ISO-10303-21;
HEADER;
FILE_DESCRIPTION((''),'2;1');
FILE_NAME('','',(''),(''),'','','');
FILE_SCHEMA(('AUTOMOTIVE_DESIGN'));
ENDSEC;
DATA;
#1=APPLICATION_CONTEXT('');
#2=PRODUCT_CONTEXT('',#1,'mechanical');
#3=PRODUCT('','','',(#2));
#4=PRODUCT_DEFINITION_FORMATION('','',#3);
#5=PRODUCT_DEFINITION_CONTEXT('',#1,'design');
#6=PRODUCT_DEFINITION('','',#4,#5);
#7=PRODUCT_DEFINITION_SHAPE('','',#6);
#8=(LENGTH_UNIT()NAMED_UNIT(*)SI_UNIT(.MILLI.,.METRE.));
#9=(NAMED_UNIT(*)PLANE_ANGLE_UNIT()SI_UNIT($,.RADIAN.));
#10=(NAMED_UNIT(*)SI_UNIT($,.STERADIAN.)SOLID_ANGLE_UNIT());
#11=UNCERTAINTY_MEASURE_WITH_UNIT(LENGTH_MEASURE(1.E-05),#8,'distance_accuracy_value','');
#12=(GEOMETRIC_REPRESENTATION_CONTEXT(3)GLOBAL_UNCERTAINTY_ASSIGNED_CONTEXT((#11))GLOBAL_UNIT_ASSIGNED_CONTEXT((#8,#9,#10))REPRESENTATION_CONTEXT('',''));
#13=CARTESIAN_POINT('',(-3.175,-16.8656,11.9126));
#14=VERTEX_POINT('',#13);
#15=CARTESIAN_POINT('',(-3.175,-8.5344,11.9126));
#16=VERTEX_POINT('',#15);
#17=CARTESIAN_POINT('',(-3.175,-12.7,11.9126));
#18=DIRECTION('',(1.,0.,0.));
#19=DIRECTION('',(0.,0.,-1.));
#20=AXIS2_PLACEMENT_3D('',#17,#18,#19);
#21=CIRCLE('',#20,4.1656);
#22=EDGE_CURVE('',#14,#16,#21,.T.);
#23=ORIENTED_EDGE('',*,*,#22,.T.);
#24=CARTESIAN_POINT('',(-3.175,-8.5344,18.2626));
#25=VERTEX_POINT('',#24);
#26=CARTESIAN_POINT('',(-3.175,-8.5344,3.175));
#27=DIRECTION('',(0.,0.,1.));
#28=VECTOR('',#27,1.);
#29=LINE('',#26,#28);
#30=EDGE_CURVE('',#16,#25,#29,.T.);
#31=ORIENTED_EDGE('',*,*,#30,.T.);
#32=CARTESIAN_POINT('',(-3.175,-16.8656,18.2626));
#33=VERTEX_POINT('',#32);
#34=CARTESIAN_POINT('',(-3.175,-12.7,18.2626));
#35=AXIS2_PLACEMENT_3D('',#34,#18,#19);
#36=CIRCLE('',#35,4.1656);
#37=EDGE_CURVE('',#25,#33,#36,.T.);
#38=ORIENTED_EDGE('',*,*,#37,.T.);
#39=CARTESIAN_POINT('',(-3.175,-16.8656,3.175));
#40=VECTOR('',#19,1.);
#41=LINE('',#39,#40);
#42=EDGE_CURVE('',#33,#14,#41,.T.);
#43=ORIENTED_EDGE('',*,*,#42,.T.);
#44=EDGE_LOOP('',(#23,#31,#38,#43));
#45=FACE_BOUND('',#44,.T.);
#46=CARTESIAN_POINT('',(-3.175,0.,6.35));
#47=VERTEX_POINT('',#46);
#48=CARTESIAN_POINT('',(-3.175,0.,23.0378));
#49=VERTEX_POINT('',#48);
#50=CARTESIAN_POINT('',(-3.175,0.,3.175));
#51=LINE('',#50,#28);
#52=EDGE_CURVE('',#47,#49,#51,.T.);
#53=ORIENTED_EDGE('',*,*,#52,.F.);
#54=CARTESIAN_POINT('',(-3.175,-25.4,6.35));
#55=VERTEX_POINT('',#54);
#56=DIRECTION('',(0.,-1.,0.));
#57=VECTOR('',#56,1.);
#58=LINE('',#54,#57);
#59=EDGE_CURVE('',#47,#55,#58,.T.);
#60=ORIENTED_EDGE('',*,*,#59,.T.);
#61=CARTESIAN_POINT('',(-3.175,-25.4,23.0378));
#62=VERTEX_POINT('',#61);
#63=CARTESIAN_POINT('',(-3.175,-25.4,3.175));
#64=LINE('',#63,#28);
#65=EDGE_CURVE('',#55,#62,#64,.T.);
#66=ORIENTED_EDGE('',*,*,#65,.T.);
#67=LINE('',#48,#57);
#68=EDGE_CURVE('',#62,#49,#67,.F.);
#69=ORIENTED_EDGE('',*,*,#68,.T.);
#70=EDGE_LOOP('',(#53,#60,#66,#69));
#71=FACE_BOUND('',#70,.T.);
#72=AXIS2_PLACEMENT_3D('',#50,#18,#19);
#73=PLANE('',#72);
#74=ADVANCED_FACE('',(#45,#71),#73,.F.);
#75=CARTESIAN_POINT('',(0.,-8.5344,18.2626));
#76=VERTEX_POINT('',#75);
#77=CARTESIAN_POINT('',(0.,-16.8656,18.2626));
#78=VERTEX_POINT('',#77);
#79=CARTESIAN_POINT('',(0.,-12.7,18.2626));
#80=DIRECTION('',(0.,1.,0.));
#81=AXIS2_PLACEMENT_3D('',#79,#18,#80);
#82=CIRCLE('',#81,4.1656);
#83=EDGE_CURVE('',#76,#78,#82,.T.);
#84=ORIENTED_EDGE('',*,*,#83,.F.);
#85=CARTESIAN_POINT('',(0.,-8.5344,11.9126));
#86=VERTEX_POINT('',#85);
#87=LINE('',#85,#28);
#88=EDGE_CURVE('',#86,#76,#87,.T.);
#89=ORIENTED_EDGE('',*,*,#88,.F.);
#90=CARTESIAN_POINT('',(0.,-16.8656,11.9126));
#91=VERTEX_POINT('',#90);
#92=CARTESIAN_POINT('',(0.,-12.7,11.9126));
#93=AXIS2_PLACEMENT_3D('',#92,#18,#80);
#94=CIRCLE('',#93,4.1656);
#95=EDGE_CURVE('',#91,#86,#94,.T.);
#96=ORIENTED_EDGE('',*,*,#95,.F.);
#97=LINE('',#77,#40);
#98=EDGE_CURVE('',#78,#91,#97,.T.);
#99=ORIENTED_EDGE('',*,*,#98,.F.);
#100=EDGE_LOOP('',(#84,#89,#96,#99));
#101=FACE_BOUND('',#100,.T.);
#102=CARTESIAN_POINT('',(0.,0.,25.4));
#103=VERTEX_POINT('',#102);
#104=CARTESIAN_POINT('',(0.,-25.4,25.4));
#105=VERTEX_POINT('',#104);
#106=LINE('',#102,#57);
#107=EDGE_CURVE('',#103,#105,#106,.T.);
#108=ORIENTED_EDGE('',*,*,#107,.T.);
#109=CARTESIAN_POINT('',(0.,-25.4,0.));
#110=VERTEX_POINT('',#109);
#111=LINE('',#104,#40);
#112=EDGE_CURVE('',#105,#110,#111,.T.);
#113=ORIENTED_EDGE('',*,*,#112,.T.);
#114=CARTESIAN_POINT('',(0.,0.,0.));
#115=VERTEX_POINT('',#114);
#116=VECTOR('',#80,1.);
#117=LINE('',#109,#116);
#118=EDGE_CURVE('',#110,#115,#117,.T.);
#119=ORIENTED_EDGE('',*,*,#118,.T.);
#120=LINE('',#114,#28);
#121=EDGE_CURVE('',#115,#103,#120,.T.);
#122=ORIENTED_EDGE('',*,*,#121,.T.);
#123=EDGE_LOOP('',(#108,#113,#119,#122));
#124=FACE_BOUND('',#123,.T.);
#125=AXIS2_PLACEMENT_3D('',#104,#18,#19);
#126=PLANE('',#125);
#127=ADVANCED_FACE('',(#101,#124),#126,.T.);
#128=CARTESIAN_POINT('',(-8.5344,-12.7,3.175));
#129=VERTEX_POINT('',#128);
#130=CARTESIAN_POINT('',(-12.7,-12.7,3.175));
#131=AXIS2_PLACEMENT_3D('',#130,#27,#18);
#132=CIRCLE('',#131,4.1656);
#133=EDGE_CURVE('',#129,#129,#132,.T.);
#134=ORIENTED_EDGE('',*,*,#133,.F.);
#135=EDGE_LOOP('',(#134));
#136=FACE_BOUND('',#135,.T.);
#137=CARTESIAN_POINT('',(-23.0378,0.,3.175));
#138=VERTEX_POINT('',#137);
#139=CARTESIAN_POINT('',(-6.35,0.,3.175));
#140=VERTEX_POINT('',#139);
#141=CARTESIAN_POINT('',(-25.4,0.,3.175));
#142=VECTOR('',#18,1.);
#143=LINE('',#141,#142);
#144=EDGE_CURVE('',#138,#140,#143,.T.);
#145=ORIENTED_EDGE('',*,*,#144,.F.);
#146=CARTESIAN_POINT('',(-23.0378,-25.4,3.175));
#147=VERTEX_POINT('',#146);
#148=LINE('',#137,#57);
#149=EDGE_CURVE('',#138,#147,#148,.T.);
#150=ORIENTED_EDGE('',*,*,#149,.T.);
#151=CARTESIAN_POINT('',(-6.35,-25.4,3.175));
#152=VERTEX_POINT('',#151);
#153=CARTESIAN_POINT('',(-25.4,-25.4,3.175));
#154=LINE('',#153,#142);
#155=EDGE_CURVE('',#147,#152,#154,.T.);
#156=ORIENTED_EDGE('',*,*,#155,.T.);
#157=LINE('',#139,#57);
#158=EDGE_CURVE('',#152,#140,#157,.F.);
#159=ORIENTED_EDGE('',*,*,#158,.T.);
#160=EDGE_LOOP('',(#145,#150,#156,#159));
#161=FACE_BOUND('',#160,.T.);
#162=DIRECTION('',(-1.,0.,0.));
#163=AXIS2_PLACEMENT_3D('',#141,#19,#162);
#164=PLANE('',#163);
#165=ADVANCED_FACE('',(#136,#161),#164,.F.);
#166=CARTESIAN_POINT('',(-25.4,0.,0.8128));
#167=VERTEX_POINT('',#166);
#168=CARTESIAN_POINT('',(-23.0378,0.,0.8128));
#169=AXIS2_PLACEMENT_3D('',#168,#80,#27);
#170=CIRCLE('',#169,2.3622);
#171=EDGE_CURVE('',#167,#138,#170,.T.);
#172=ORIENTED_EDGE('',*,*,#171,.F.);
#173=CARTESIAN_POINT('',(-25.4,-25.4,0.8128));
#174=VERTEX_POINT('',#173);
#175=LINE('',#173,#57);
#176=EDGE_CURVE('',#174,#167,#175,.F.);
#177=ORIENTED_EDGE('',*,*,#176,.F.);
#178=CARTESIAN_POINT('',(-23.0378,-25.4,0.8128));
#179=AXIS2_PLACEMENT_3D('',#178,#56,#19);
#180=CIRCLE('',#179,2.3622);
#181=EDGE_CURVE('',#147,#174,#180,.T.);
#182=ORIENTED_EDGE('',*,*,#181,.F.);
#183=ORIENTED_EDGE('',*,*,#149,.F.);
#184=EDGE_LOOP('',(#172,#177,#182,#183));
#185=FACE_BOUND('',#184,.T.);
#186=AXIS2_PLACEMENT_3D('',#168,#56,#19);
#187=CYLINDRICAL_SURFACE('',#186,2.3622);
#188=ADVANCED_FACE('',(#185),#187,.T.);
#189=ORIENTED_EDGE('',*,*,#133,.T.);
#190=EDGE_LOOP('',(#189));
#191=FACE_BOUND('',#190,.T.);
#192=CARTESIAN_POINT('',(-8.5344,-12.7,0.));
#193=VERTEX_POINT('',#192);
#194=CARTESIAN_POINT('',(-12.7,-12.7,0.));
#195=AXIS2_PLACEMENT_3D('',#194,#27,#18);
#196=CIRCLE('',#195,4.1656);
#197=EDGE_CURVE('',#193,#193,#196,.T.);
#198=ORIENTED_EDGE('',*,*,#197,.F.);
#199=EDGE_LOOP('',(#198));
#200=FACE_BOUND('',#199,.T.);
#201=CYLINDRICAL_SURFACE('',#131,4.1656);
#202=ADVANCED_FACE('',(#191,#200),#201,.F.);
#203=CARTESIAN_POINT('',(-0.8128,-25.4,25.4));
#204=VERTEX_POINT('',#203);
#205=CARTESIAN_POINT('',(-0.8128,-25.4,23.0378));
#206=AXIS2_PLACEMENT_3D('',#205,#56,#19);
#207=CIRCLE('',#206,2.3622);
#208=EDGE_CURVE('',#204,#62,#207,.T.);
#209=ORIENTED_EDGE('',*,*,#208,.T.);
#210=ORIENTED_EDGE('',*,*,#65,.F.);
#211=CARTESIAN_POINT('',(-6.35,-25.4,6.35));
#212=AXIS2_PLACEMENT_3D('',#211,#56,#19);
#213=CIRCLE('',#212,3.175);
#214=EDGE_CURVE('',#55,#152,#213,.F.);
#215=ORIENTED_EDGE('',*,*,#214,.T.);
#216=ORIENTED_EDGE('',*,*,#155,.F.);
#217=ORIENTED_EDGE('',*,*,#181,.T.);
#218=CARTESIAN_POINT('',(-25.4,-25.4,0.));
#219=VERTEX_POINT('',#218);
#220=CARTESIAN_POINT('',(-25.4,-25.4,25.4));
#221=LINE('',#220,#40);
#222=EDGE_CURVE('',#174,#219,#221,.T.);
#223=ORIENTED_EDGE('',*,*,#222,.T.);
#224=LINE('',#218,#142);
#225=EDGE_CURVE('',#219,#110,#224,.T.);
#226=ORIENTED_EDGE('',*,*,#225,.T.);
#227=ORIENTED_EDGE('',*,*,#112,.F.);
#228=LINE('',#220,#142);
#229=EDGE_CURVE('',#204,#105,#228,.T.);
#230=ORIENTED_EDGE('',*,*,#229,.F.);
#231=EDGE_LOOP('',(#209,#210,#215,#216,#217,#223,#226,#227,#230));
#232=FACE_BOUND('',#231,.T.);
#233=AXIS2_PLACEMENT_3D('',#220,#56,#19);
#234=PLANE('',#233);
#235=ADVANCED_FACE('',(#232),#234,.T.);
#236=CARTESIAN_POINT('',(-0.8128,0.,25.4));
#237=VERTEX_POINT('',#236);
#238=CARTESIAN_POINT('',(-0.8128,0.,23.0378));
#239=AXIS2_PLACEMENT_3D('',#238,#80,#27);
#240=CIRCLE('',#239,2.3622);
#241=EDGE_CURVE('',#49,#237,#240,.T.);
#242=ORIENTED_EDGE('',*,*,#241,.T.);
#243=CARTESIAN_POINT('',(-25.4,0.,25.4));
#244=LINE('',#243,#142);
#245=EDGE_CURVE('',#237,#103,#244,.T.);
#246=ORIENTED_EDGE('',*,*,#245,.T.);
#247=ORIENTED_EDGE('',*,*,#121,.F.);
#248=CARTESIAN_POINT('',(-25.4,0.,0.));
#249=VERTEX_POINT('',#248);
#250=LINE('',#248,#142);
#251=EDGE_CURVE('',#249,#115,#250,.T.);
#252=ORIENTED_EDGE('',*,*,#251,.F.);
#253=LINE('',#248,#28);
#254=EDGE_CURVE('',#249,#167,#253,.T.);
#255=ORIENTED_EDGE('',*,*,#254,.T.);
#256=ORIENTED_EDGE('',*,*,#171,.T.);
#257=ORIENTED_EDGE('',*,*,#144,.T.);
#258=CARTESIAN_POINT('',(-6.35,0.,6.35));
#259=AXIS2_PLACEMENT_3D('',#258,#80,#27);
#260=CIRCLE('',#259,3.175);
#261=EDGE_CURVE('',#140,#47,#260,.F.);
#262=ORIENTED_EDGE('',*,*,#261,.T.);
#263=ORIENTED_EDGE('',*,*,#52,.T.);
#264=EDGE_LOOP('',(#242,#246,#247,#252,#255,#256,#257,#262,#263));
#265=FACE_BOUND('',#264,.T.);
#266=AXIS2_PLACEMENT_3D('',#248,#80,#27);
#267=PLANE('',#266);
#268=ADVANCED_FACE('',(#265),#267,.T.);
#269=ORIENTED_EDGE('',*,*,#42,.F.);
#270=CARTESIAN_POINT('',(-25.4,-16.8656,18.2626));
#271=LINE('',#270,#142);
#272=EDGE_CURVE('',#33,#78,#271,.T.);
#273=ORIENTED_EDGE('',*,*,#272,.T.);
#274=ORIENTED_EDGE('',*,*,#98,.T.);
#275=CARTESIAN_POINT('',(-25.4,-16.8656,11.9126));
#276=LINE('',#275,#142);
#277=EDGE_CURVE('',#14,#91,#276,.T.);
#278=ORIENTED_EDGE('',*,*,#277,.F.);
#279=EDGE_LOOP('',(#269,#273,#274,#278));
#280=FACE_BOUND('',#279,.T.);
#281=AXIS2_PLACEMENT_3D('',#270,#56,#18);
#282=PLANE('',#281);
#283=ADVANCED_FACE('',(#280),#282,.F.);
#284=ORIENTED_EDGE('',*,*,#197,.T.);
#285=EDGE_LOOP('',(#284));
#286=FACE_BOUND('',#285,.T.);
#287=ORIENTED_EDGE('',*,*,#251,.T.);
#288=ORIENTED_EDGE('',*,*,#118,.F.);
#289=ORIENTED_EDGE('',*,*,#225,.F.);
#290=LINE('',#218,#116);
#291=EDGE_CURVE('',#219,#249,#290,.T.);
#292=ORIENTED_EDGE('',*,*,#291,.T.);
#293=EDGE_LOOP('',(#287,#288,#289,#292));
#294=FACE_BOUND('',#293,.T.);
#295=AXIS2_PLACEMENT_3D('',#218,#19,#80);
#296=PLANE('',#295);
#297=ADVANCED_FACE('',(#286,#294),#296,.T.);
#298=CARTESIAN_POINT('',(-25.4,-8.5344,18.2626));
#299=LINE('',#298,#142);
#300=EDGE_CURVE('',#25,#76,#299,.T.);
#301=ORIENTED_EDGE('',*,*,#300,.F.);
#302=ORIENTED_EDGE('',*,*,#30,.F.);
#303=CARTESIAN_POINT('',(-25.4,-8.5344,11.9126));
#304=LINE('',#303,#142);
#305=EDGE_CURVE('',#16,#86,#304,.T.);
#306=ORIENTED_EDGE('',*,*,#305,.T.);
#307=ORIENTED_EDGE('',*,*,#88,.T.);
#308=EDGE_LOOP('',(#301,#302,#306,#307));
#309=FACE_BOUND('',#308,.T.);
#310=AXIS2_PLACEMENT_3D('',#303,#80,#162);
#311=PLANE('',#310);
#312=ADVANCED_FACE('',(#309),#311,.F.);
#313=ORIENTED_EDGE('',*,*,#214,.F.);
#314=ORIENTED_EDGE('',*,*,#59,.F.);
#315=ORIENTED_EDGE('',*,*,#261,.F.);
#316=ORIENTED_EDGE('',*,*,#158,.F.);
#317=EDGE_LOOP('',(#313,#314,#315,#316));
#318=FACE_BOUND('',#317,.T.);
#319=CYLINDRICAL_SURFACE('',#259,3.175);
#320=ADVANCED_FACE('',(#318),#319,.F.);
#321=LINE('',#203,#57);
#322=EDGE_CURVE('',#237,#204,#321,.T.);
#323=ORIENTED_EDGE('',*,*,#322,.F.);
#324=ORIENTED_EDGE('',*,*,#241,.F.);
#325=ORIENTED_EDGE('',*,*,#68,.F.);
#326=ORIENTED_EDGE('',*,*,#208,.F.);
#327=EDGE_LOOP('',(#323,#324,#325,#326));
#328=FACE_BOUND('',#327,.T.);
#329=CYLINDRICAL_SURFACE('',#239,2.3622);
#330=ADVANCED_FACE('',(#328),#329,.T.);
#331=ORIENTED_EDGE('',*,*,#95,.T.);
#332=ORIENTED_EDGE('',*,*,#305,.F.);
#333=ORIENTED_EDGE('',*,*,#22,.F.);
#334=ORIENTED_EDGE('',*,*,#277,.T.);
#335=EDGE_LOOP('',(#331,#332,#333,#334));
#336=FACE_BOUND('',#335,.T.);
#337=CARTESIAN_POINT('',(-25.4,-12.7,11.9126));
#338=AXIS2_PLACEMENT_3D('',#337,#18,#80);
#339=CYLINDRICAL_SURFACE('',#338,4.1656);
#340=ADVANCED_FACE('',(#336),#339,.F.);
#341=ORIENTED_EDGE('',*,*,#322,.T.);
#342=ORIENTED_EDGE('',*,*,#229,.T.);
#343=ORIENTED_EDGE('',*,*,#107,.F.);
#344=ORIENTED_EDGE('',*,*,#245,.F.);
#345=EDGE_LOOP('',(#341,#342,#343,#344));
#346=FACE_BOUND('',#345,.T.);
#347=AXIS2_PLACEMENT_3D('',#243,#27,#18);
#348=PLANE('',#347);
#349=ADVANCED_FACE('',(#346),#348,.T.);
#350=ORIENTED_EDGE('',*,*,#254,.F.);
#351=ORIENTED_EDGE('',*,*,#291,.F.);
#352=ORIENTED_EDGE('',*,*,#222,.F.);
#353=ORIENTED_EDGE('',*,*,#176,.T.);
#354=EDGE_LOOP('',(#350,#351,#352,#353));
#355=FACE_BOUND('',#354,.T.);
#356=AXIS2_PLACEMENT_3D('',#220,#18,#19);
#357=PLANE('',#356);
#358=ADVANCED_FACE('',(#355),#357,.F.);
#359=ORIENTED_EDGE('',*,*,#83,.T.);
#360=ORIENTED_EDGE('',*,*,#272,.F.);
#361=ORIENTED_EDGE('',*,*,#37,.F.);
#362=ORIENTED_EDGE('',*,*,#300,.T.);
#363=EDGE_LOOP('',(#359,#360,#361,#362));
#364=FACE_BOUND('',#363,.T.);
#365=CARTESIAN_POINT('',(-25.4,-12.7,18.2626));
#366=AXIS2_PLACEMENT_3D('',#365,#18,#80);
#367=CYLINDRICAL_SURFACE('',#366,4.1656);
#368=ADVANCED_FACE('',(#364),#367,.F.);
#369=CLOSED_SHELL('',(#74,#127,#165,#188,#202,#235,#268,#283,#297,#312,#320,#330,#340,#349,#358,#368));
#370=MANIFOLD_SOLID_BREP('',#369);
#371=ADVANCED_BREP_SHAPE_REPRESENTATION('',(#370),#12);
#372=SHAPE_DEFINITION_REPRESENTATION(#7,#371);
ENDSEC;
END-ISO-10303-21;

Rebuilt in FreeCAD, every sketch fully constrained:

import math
import FreeCAD as App
import Part
import Sketcher

V = App.Vector
Q = App.Units.Quantity


def edges_at(feature, points):
    """Names of the edges that pass closest to the given points."""
    edges = feature.Shape.Edges
    near = lambda p: min(range(len(edges)), key=lambda i: edges[i].distToShape(Part.Vertex(*p))[0])
    return sorted({f"Edge{near(p) + 1}" for p in points})

doc = App.newDocument("Part")
body = doc.addObject("PartDesign::Body", "Body")

# Sketch on YZ plane
sketch1 = body.newObject("Sketcher::SketchObject", "Sketch")
sketch1.AttachmentSupport = (doc.getObject("YZ_Plane"), [""])
sketch1.MapMode = "FlatFace"
sketch1.addGeometry(Part.LineSegment(V(0, 25, 0), V(-25, 25, 0)), False)
sketch1.addGeometry(Part.LineSegment(V(-25, 25, 0), V(-25, 0, 0)), False)
sketch1.addGeometry(Part.LineSegment(V(-25, 0, 0), V(0, 0, 0)), False)
sketch1.addGeometry(Part.LineSegment(V(0, 0, 0), V(0, 25, 0)), False)
sketch1.addConstraint(Sketcher.Constraint("Coincident", 0, 2, 1, 1))
sketch1.addConstraint(Sketcher.Constraint("Coincident", 1, 2, 2, 1))
sketch1.addConstraint(Sketcher.Constraint("Coincident", 2, 2, 3, 1))
sketch1.addConstraint(Sketcher.Constraint("Coincident", 3, 2, 0, 1))
sketch1.addConstraint(Sketcher.Constraint("Horizontal", 0))
sketch1.addConstraint(Sketcher.Constraint("Vertical", 1))
sketch1.addConstraint(Sketcher.Constraint("Horizontal", 2))
sketch1.addConstraint(Sketcher.Constraint("Vertical", 3))
sketch1.addConstraint(Sketcher.Constraint("Coincident", 2, 2, -1, 1))
sketch1.addConstraint(Sketcher.Constraint("Equal", 2, 1))
sketch1.addConstraint(Sketcher.Constraint("DistanceX", 0, 2, 0, 1, Q("1 in")))
pad1 = body.newObject("PartDesign::Pad", "Pad")
pad1.Profile = sketch1
pad1.Length = Q("1 in")
pad1.Reversed = True

# Sketch on XZ plane
sketch2 = body.newObject("Sketcher::SketchObject", "Sketch001")
sketch2.AttachmentSupport = (doc.getObject("XZ_Plane"), [""])
sketch2.MapMode = "FlatFace"
sketch2.AttachmentOffset = App.Placement(V(0, 0, 1 * 25.4), App.Rotation())
sketch2.addGeometry(Part.LineSegment(V(-25, 25, 0), V(-25, 3, 0)), False)
sketch2.addGeometry(Part.LineSegment(V(-25, 3, 0), V(-3, 3, 0)), False)
sketch2.addGeometry(Part.LineSegment(V(-3, 3, 0), V(-3, 25, 0)), False)
sketch2.addGeometry(Part.LineSegment(V(-3, 25, 0), V(-25, 25, 0)), False)
sketch2.addConstraint(Sketcher.Constraint("Coincident", 0, 2, 1, 1))
sketch2.addConstraint(Sketcher.Constraint("Coincident", 1, 2, 2, 1))
sketch2.addConstraint(Sketcher.Constraint("Coincident", 2, 2, 3, 1))
sketch2.addConstraint(Sketcher.Constraint("Coincident", 3, 2, 0, 1))
sketch2.addConstraint(Sketcher.Constraint("Vertical", 0))
sketch2.addConstraint(Sketcher.Constraint("Horizontal", 1))
sketch2.addConstraint(Sketcher.Constraint("Vertical", 2))
sketch2.addConstraint(Sketcher.Constraint("Horizontal", 3))
sketch2.addConstraint(Sketcher.Constraint("Equal", 3, 0))
sketch2.addConstraint(Sketcher.Constraint("DistanceX", 0, 2, -1, 1, Q("1 in")))
sketch2.addConstraint(Sketcher.Constraint("DistanceY", -1, 1, 2, 2, Q("1 in")))
sketch2.addConstraint(Sketcher.Constraint("DistanceX", 1, 1, 1, 2, Q("0.875 in")))
pocket1 = body.newObject("PartDesign::Pocket", "Pocket")
pocket1.Profile = sketch2
pocket1.Type = "ThroughAll"

# Sketch on YZ plane
sketch3 = body.newObject("Sketcher::SketchObject", "Sketch002")
sketch3.AttachmentSupport = (doc.getObject("YZ_Plane"), [""])
sketch3.MapMode = "FlatFace"
sketch3.addGeometry(Part.LineSegment(V(-16.9, 18.3, 0), V(-16.9, 11.9, 0)), False)
sketch3.addGeometry(Part.ArcOfCircle(Part.Circle(V(-12.7, 11.9, 0), V(0, 0, 1), 4.2), math.radians(180), math.radians(360)), False)
sketch3.addGeometry(Part.LineSegment(V(-8.5, 11.9, 0), V(-8.5, 18.3, 0)), False)
sketch3.addGeometry(Part.ArcOfCircle(Part.Circle(V(-12.7, 18.3, 0), V(0, 0, 1), 4.2), math.radians(0), math.radians(180)), False)
sketch3.addConstraint(Sketcher.Constraint("Tangent", 0, 2, 1, 1))
sketch3.addConstraint(Sketcher.Constraint("Tangent", 1, 2, 2, 1))
sketch3.addConstraint(Sketcher.Constraint("Tangent", 2, 2, 3, 1))
sketch3.addConstraint(Sketcher.Constraint("Tangent", 3, 2, 0, 1))
sketch3.addConstraint(Sketcher.Constraint("Vertical", 0))
sketch3.addConstraint(Sketcher.Constraint("Vertical", 2))
sketch3.addConstraint(Sketcher.Constraint("Radius", 1, Q("0.164 in")))
sketch3.addConstraint(Sketcher.Constraint("DistanceY", 0, 2, 0, 1, Q("0.25 in")))
sketch3.addConstraint(Sketcher.Constraint("DistanceX", 1, 3, -1, 1, Q("0.5 in")))
sketch3.addConstraint(Sketcher.Constraint("DistanceY", -1, 1, 1, 3, Q("0.469 in")))
pocket2 = body.newObject("PartDesign::Pocket", "Pocket001")
pocket2.Profile = sketch3
pocket2.Type = "ThroughAll"

# Sketch on XY plane
sketch4 = body.newObject("Sketcher::SketchObject", "Sketch003")
sketch4.AttachmentSupport = (doc.getObject("XY_Plane"), [""])
sketch4.MapMode = "FlatFace"
sketch4.AttachmentOffset = App.Placement(V(0, 0, 0.125 * 25.4), App.Rotation())
sketch4.addGeometry(Part.Circle(V(-12.7, -12.7, 0), V(0, 0, 1), 4.2), False)
sketch4.addConstraint(Sketcher.Constraint("Diameter", 0, Q("0.328 in")))
sketch4.addConstraint(Sketcher.Constraint("DistanceX", 0, 3, -1, 1, Q("0.5 in")))
sketch4.addConstraint(Sketcher.Constraint("DistanceY", 0, 3, -1, 1, Q("0.5 in")))
doc.recompute()
hole = body.newObject("PartDesign::Hole", "Hole")
hole.Profile = sketch4
hole.ThreadType = "None"
hole.Diameter = Q("0.328 in")
hole.DepthType = "ThroughAll"
doc.recompute()

fillet = body.newObject("PartDesign::Fillet", "Fillet")
fillet.Base = (hole, edges_at(hole, [(-25.4, -12.7, 3.175), (-3.175, -12.7, 25.4)]))
fillet.Radius = Q("0.093 in")
doc.recompute()

fillet2 = body.newObject("PartDesign::Fillet", "Fillet001")
fillet2.Base = (fillet, edges_at(fillet, [(-3.175, -12.7, 3.175)]))
fillet2.Radius = Q("0.125 in")

doc.recompute()
